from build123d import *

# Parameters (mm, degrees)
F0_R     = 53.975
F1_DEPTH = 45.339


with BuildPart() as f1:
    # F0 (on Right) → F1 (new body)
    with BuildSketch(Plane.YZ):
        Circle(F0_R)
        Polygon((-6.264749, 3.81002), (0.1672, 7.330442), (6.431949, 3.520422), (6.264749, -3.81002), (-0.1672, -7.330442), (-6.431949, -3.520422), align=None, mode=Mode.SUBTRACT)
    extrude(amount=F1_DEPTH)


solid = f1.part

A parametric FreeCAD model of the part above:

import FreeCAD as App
import Part
import Sketcher

V = App.Vector
Q = App.Units.Quantity

doc = App.newDocument("Part")
body = doc.addObject("PartDesign::Body", "Body")

sketch1 = body.newObject("Sketcher::SketchObject", "Sketch")
sketch1.AttachmentSupport = (doc.getObject("YZ_Plane"), [""])
sketch1.MapMode = "FlatFace"
sketch1.addGeometry(Part.Circle(V(0, 0, 0), V(0, 0, 1), 53.975), False)
sketch1.addGeometry(Part.LineSegment(V(-6.431949, -3.520422, 0), V(-6.264749, 3.81002, 0)), False)
sketch1.addGeometry(Part.LineSegment(V(-6.264749, 3.81002, 0), V(0.1672, 7.330442, 0)), False)
sketch1.addGeometry(Part.LineSegment(V(0.1672, 7.330442, 0), V(6.431949, 3.520422, 0)), False)
sketch1.addGeometry(Part.LineSegment(V(6.431949, 3.520422, 0), V(6.264749, -3.81002, 0)), False)
sketch1.addGeometry(Part.LineSegment(V(6.264749, -3.81002, 0), V(-0.1672, -7.330442, 0)), False)
sketch1.addGeometry(Part.LineSegment(V(-0.1672, -7.330442, 0), V(-6.431949, -3.520422, 0)), False)
sketch1.addConstraint(Sketcher.Constraint("Coincident", 1, 2, 2, 1))
sketch1.addConstraint(Sketcher.Constraint("Coincident", 2, 2, 3, 1))
sketch1.addConstraint(Sketcher.Constraint("Coincident", 3, 2, 4, 1))
sketch1.addConstraint(Sketcher.Constraint("Coincident", 4, 2, 5, 1))
sketch1.addConstraint(Sketcher.Constraint("Coincident", 5, 2, 6, 1))
sketch1.addConstraint(Sketcher.Constraint("Coincident", 6, 2, 1, 1))
sketch1.addConstraint(Sketcher.Constraint("Coincident", 0, 3, -1, 1))
sketch1.addConstraint(Sketcher.Constraint("Symmetric", 1, 2, 4, 2, -1, 1))
sketch1.addConstraint(Sketcher.Constraint("Symmetric", 2, 2, 5, 2, -1, 1))
sketch1.addConstraint(Sketcher.Constraint("Symmetric", 3, 2, 6, 2, -1, 1))
sketch1.addConstraint(Sketcher.Constraint("Equal", 1, 2))
sketch1.addConstraint(Sketcher.Constraint("Equal", 2, 3))
sketch1.addConstraint(Sketcher.Constraint("Diameter", 0, Q("4.25 in")))
sketch1.addConstraint(Sketcher.Constraint("DistanceY", -1, 1, 2, 2, Q("0.2886001 in")))
sketch1.addConstraint(Sketcher.Constraint("DistanceY", 4, 2, 3, 2, Q("0.2886001 in")))
sketch1.addConstraint(Sketcher.Constraint("DistanceX", -1, 1, 2, 2, 0.1672))
sketch1.addConstraint(Sketcher.Constraint("DistanceX", 1, 2, 3, 2, 12.696698))
pad1 = body.newObject("PartDesign::Pad", "Pad")
pad1.Profile = sketch1
pad1.Length = Q("1.785 in")

doc.recompute()
